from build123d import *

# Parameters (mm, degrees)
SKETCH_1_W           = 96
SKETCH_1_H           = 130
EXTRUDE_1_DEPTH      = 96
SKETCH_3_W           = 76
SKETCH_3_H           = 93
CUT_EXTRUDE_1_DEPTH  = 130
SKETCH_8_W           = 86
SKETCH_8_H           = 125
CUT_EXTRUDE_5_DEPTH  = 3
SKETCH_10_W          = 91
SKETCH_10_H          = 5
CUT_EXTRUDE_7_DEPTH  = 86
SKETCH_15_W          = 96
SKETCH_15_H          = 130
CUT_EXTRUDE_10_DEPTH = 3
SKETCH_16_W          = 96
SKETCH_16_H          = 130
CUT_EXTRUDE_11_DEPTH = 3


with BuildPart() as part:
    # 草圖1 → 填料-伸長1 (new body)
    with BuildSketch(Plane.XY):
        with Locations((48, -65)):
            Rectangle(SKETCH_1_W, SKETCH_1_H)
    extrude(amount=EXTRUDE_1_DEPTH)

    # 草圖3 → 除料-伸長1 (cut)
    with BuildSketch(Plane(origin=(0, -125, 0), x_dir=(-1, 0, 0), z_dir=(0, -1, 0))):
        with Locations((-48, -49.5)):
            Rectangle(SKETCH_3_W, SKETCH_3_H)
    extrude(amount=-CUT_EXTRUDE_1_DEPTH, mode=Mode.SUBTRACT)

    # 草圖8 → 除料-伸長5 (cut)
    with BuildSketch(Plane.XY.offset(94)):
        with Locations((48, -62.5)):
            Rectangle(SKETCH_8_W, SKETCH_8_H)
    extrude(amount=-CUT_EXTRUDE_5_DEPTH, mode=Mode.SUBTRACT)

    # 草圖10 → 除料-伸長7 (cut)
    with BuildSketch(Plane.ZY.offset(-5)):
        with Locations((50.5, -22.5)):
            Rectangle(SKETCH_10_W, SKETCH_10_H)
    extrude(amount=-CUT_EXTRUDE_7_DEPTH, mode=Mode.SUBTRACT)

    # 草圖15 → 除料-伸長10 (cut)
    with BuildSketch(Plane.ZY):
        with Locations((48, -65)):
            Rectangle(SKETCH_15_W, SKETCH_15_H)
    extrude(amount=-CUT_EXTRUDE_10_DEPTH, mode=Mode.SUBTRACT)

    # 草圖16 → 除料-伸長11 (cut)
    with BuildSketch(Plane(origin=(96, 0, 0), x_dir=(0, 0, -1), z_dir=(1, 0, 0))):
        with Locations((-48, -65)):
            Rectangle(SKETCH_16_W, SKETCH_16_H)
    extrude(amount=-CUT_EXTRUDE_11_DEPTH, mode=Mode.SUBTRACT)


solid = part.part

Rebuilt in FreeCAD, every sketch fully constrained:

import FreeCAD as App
import Part
import Sketcher

V = App.Vector
Q = App.Units.Quantity


def add_polygon(sketch, points):
    """Adds a closed chain of lines whose ends are joined by coincident constraints."""
    first, n = sketch.GeometryCount, len(points)
    for a, b in zip(points, points[1:] + points[:1]):
        sketch.addGeometry(Part.LineSegment(App.Vector(*a, 0), App.Vector(*b, 0)), False)
    for i in range(n):
        sketch.addConstraint(Sketcher.Constraint("Coincident", first + i, 2, first + (i + 1) % n, 1))

doc = App.newDocument("Part")
body = doc.addObject("PartDesign::Body", "Body")

# Sketch on XY plane
sketch1 = body.newObject("Sketcher::SketchObject", "Sketch")
sketch1.AttachmentSupport = (doc.getObject("XY_Plane"), [""])
sketch1.MapMode = "FlatFace"
add_polygon(sketch1, [(0, 0), (0, -130), (96, -130), (96, 0)])  # lines 0-3
sketch1.addConstraint(Sketcher.Constraint("Vertical", 0))
sketch1.addConstraint(Sketcher.Constraint("Horizontal", 1))
sketch1.addConstraint(Sketcher.Constraint("Vertical", 2))
sketch1.addConstraint(Sketcher.Constraint("Horizontal", 3))
sketch1.addConstraint(Sketcher.Constraint("Coincident", 3, 2, -1, 1))
sketch1.addConstraint(Sketcher.Constraint("DistanceX", 1, 1, 1, 2, Q("96 mm")))
sketch1.addConstraint(Sketcher.Constraint("DistanceY", 0, 2, 0, 1, Q("130 mm")))
pad1 = body.newObject("PartDesign::Pad", "Pad")
pad1.Profile = sketch1
pad1.Length = 96

# Sketch on XZ plane
sketch2 = body.newObject("Sketcher::SketchObject", "Sketch001")
sketch2.AttachmentSupport = (doc.getObject("XZ_Plane"), [""])
sketch2.MapMode = "FlatFace"
sketch2.AttachmentOffset = App.Placement(V(0, 0, 125), App.Rotation())
add_polygon(sketch2, [(86, 3), (86, 96), (10, 96), (10, 3)])  # lines 0-3
sketch2.addConstraint(Sketcher.Constraint("Vertical", 0))
sketch2.addConstraint(Sketcher.Constraint("Horizontal", 1))
sketch2.addConstraint(Sketcher.Constraint("Vertical", 2))
sketch2.addConstraint(Sketcher.Constraint("Horizontal", 3))
sketch2.addConstraint(Sketcher.Constraint("DistanceX", 1, 2, 1, 1, Q("76 mm")))
sketch2.addConstraint(Sketcher.Constraint("DistanceY", 0, 1, 0, 2, Q("93 mm")))
sketch2.addConstraint(Sketcher.Constraint("DistanceX", -1, 1, 0, 2, Q("86 mm")))
sketch2.addConstraint(Sketcher.Constraint("DistanceY", -1, 1, 0, 2, Q("96 mm")))
pocket1 = body.newObject("PartDesign::Pocket", "Pocket")
pocket1.Profile = sketch2
pocket1.Length = 130

# Sketch on XY plane
sketch3 = body.newObject("Sketcher::SketchObject", "Sketch002")
sketch3.AttachmentSupport = (doc.getObject("XY_Plane"), [""])
sketch3.MapMode = "FlatFace"
sketch3.AttachmentOffset = App.Placement(V(0, 0, 94), App.Rotation())
add_polygon(sketch3, [(5, 0), (5, -125), (91, -125), (91, 0)])  # lines 0-3
sketch3.addConstraint(Sketcher.Constraint("Vertical", 0))
sketch3.addConstraint(Sketcher.Constraint("Horizontal", 1))
sketch3.addConstraint(Sketcher.Constraint("Vertical", 2))
sketch3.addConstraint(Sketcher.Constraint("Horizontal", 3))
sketch3.addConstraint(Sketcher.Constraint("PointOnObject", 2, 2, -1))
sketch3.addConstraint(Sketcher.Constraint("DistanceX", 1, 1, 1, 2, Q("86 mm")))
sketch3.addConstraint(Sketcher.Constraint("DistanceY", 0, 2, 0, 1, Q("125 mm")))
sketch3.addConstraint(Sketcher.Constraint("DistanceX", -1, 1, 0, 2, Q("5 mm")))
pocket2 = body.newObject("PartDesign::Pocket", "Pocket001")
pocket2.Profile = sketch3
pocket2.Length = 3

# Sketch on YZ plane
sketch4 = body.newObject("Sketcher::SketchObject", "Sketch003")
sketch4.AttachmentSupport = (doc.getObject("YZ_Plane"), [""])
sketch4.MapMode = "FlatFace"
sketch4.AttachmentOffset = App.Placement(V(0, 0, 5), App.Rotation())
add_polygon(sketch4, [(-20, 5), (-25, 5), (-25, 96), (-20, 96)])  # lines 0-3
sketch4.addConstraint(Sketcher.Constraint("Horizontal", 0))
sketch4.addConstraint(Sketcher.Constraint("Vertical", 1))
sketch4.addConstraint(Sketcher.Constraint("Horizontal", 2))
sketch4.addConstraint(Sketcher.Constraint("Vertical", 3))
sketch4.addConstraint(Sketcher.Constraint("DistanceX", 0, 2, 0, 1, Q("5 mm")))
sketch4.addConstraint(Sketcher.Constraint("DistanceY", 1, 1, 1, 2, Q("91 mm")))
sketch4.addConstraint(Sketcher.Constraint("DistanceX", 0, 2, -1, 1, Q("25 mm")))
sketch4.addConstraint(Sketcher.Constraint("DistanceY", -1, 1, 0, 2, Q("5 mm")))
pocket3 = body.newObject("PartDesign::Pocket", "Pocket002")
pocket3.Profile = sketch4
pocket3.Length = 86
pocket3.Reversed = True

# Sketch on YZ plane
sketch5 = body.newObject("Sketcher::SketchObject", "Sketch004")
sketch5.AttachmentSupport = (doc.getObject("YZ_Plane"), [""])
sketch5.MapMode = "FlatFace"
add_polygon(sketch5, [(0, 0), (-130, 0), (-130, 96), (0, 96)])  # lines 0-3
sketch5.addConstraint(Sketcher.Constraint("Horizontal", 0))
sketch5.addConstraint(Sketcher.Constraint("Vertical", 1))
sketch5.addConstraint(Sketcher.Constraint("Horizontal", 2))
sketch5.addConstraint(Sketcher.Constraint("Vertical", 3))
sketch5.addConstraint(Sketcher.Constraint("Coincident", 3, 2, -1, 1))
sketch5.addConstraint(Sketcher.Constraint("DistanceX", 0, 2, 0, 1, Q("130 mm")))
sketch5.addConstraint(Sketcher.Constraint("DistanceY", 1, 1, 1, 2, Q("96 mm")))
pocket4 = body.newObject("PartDesign::Pocket", "Pocket003")
pocket4.Profile = sketch5
pocket4.Length = 3
pocket4.Reversed = True

# Sketch on YZ plane
sketch6 = body.newObject("Sketcher::SketchObject", "Sketch005")
sketch6.AttachmentSupport = (doc.getObject("YZ_Plane"), [""])
sketch6.MapMode = "FlatFace"
sketch6.AttachmentOffset = App.Placement(V(0, 0, 96), App.Rotation())
add_polygon(sketch6, [(0, 96), (-130, 96), (-130, 0), (0, 0)])  # lines 0-3
sketch6.addConstraint(Sketcher.Constraint("Horizontal", 0))
sketch6.addConstraint(Sketcher.Constraint("Vertical", 1))
sketch6.addConstraint(Sketcher.Constraint("Horizontal", 2))
sketch6.addConstraint(Sketcher.Constraint("Vertical", 3))
sketch6.addConstraint(Sketcher.Constraint("Coincident", 2, 2, -1, 1))
sketch6.addConstraint(Sketcher.Constraint("DistanceX", 0, 2, 0, 1, Q("130 mm")))
sketch6.addConstraint(Sketcher.Constraint("DistanceY", 1, 2, 1, 1, Q("96 mm")))
pocket5 = body.newObject("PartDesign::Pocket", "Pocket004")
pocket5.Profile = sketch6
pocket5.Length = 3

doc.recompute()
